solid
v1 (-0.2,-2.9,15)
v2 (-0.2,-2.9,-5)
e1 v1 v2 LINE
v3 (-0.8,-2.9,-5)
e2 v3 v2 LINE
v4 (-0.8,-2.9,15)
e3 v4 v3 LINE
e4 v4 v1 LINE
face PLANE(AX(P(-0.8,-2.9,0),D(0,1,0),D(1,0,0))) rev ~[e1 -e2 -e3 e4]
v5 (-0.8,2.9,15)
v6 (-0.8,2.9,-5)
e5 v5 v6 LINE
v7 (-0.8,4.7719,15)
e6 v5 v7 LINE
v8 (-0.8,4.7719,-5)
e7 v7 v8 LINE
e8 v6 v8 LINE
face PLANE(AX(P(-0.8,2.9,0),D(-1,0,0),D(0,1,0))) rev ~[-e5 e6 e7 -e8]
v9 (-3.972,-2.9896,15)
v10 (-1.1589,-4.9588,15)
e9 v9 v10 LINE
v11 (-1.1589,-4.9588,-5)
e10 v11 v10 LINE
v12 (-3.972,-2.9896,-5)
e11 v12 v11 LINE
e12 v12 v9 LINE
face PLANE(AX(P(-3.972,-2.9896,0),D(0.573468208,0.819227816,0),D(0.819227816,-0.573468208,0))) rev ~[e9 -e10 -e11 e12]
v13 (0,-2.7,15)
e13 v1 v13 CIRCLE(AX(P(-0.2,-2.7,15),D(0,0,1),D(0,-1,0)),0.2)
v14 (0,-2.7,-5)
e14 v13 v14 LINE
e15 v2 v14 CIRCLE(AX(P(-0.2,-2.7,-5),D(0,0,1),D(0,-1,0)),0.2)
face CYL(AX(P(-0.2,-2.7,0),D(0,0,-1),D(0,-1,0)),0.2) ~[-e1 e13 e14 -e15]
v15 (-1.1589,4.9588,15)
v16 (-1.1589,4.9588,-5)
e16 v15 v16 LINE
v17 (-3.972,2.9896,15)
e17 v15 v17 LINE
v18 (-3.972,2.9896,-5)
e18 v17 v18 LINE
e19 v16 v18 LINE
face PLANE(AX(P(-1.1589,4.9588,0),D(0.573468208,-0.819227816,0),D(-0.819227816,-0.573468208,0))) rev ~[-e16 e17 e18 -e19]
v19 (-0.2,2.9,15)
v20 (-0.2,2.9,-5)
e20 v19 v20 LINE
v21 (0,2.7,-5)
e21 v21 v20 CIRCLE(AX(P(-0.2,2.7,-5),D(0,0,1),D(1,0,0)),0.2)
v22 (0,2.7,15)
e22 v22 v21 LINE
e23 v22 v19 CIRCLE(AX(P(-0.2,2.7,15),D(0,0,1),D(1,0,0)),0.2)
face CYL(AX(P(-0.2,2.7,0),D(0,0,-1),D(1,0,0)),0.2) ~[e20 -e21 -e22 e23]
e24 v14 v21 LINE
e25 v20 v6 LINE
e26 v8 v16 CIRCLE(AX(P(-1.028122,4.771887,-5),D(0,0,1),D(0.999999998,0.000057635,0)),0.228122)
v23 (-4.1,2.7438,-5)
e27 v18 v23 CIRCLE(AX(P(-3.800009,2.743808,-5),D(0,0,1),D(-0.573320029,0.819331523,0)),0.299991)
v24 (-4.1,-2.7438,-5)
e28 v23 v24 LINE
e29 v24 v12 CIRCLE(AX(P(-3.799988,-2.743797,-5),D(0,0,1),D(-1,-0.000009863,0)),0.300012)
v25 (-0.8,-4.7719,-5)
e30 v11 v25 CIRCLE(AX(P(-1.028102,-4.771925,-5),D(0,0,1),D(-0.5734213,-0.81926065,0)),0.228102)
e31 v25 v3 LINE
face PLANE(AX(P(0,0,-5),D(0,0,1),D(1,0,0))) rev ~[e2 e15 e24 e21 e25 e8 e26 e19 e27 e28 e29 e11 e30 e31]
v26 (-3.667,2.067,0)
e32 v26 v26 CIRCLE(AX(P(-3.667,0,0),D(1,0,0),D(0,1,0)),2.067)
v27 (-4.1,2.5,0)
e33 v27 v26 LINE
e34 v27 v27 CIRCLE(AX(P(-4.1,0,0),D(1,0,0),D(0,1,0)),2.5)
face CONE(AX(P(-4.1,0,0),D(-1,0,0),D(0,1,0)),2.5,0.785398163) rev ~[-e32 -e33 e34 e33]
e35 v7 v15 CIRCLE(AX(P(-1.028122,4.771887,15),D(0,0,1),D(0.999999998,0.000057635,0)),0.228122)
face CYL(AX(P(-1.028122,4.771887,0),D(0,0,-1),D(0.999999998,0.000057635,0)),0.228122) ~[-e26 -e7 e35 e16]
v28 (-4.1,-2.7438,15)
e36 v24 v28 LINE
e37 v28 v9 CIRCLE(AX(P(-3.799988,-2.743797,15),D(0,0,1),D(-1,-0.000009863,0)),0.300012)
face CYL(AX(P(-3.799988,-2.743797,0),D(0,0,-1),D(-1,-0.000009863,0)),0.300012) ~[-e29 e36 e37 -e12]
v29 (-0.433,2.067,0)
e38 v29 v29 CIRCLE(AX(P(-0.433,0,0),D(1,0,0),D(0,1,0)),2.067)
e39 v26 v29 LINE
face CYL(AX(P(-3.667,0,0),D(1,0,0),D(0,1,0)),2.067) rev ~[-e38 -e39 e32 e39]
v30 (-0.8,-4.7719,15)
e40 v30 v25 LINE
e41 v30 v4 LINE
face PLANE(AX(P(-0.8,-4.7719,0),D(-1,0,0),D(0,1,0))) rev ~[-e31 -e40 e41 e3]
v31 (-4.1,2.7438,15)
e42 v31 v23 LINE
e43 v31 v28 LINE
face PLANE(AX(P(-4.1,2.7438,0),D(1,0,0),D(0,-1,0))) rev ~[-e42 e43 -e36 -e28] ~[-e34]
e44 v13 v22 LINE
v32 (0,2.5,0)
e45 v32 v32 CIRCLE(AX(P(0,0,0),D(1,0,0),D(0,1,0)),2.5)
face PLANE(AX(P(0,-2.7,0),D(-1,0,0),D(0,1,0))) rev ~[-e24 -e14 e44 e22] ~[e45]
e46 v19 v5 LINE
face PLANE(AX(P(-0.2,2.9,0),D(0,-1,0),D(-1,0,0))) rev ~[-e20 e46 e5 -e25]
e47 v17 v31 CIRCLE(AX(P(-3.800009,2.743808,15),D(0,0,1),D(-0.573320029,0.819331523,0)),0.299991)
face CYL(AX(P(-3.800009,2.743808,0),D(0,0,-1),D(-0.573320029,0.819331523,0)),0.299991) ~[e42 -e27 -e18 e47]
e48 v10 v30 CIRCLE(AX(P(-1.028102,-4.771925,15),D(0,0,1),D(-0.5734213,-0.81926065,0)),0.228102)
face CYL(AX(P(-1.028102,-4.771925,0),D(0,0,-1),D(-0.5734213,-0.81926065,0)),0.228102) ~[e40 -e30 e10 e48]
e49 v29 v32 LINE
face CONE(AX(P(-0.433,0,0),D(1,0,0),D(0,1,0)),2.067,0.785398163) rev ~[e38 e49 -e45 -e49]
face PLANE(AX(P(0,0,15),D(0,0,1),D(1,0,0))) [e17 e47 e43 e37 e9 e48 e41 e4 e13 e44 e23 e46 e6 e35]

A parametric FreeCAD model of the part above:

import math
import FreeCAD as App
import Part
import Sketcher

V = App.Vector
Q = App.Units.Quantity


def add_polygon(sketch, points):
    """Adds a closed chain of lines whose ends are joined by coincident constraints."""
    first, n = sketch.GeometryCount, len(points)
    for a, b in zip(points, points[1:] + points[:1]):
        sketch.addGeometry(Part.LineSegment(App.Vector(*a, 0), App.Vector(*b, 0)), False)
    for i in range(n):
        sketch.addConstraint(Sketcher.Constraint("Coincident", first + i, 2, first + (i + 1) % n, 1))

doc = App.newDocument("Part")
body = doc.addObject("PartDesign::Body", "Body")

# Sketch on XY plane
sketch1 = body.newObject("Sketcher::SketchObject", "Sketch")
sketch1.AttachmentSupport = (doc.getObject("XY_Plane"), [""])
sketch1.MapMode = "FlatFace"
sketch1.addGeometry([
    Part.LineSegment(V(-4.1, 2.74, 0), V(-4.1, -2.74, 0)),  # 0
    Part.ArcOfCircle(Part.Circle(V(-3.8, -2.74, 0), V(0, 0, 1), 0.3), math.radians(180), math.radians(235)),  # 1
    Part.LineSegment(V(-3.97, -2.99, 0), V(-1.16, -4.96, 0)),  # 2
    Part.ArcOfCircle(Part.Circle(V(-1.03, -4.77, 0), V(0, 0, 1), 0.23), math.radians(-125), math.radians(0)),  # 3
    Part.LineSegment(V(-0.8, -4.77, 0), V(-0.8, -2.9, 0)),  # 4
    Part.LineSegment(V(-0.8, -2.9, 0), V(-0.2, -2.9, 0)),  # 5
    Part.ArcOfCircle(Part.Circle(V(-0.2, -2.7, 0), V(0, 0, 1), 0.2), math.radians(-90), math.radians(0)),  # 6
    Part.LineSegment(V(0, -2.7, 0), V(0, 2.7, 0)),  # 7
    Part.ArcOfCircle(Part.Circle(V(-0.2, 2.7, 0), V(0, 0, 1), 0.2), math.radians(0), math.radians(90)),  # 8
    Part.LineSegment(V(-0.2, 2.9, 0), V(-0.8, 2.9, 0)),  # 9
    Part.LineSegment(V(-0.8, 2.9, 0), V(-0.8, 4.77, 0)),  # 10
    Part.ArcOfCircle(Part.Circle(V(-1.03, 4.77, 0), V(0, 0, 1), 0.23), math.radians(0), math.radians(125)),  # 11
    Part.LineSegment(V(-1.16, 4.96, 0), V(-3.97, 2.99, 0)),  # 12
    Part.ArcOfCircle(Part.Circle(V(-3.8, 2.74, 0), V(0, 0, 1), 0.3), math.radians(125), math.radians(180)),  # 13
], False)
sketch1.addConstraint([
    Sketcher.Constraint("Tangent", 0, 2, 1, 1),
    Sketcher.Constraint("Tangent", 1, 2, 2, 1),
    Sketcher.Constraint("Tangent", 2, 2, 3, 1),
    Sketcher.Constraint("Tangent", 3, 2, 4, 1),
    Sketcher.Constraint("Coincident", 4, 2, 5, 1),
    Sketcher.Constraint("Tangent", 5, 2, 6, 1),
    Sketcher.Constraint("Tangent", 6, 2, 7, 1),
    Sketcher.Constraint("Tangent", 7, 2, 8, 1),
    Sketcher.Constraint("Tangent", 8, 2, 9, 1),
    Sketcher.Constraint("Coincident", 9, 2, 10, 1),
    Sketcher.Constraint("Tangent", 10, 2, 11, 1),
    Sketcher.Constraint("Tangent", 11, 2, 12, 1),
    Sketcher.Constraint("Tangent", 12, 2, 13, 1),
    Sketcher.Constraint("Tangent", 13, 2, 0, 1),
    Sketcher.Constraint("Vertical", 0),
    Sketcher.Constraint("Vertical", 4),
    Sketcher.Constraint("Horizontal", 5),
    Sketcher.Constraint("Vertical", 7),
    Sketcher.Constraint("Horizontal", 9),
    Sketcher.Constraint("Vertical", 10),
    Sketcher.Constraint("Equal", 6, 8),
    Sketcher.Constraint("Equal", 3, 11),
    Sketcher.Constraint("Equal", 1, 13),
    Sketcher.Constraint("Symmetric", 6, 2, 7, 2, -1, 1),
    Sketcher.Constraint("Symmetric", 3, 3, 11, 3, -1),
    Sketcher.Constraint("Vertical", 2, 2, 11, 2),
    Sketcher.Constraint("Radius", 1, Q("0.3 mm")),
    Sketcher.Constraint("Radius", 6, Q("0.2 mm")),
    Sketcher.Constraint("DistanceX", 5, 1, 5, 2, Q("0.6 mm")),
    Sketcher.Constraint("DistanceY", 7, 1, 7, 2, Q("5.4 mm")),
    Sketcher.Constraint("Radius", 11, Q("0.228 mm")),
    Sketcher.Constraint("DistanceX", 1, 3, 3, 2, Q("3 mm")),
    Sketcher.Constraint("DistanceY", 4, 1, 4, 2, Q("1.872 mm")),
    Sketcher.Constraint("DistanceY", 0, 2, 0, 1, Q("5.4876 mm")),
])
pad1 = body.newObject("PartDesign::Pad", "Pad")
pad1.Profile = sketch1
pad1.Type = "TwoLengths"
pad1.Length = 15
pad1.Length2 = 5

# Sketch on XY plane
sketch2 = body.newObject("Sketcher::SketchObject", "Sketch001")
sketch2.AttachmentSupport = (doc.getObject("XY_Plane"), [""])
sketch2.MapMode = "FlatFace"
add_polygon(sketch2, [(-4.1, 0), (0, 0), (0, 2.5), (-0.4, 2.1), (-3.7, 2.1), (-4.1, 2.5)])  # lines 0-5
sketch2.addConstraint([
    Sketcher.Constraint("Horizontal", 0),
    Sketcher.Constraint("Vertical", 1),
    Sketcher.Constraint("Horizontal", 3),
    Sketcher.Constraint("Vertical", 5),
    Sketcher.Constraint("Coincident", 0, 2, -1, 1),
    Sketcher.Constraint("Perpendicular", 2, 4),
    Sketcher.Constraint("Horizontal", 1, 2, 4, 2),
    Sketcher.Constraint("Equal", 2, 4),
    Sketcher.Constraint("DistanceX", 0, 1, 0, 2, Q("4.1 mm")),
    Sketcher.Constraint("DistanceY", 1, 1, 1, 2, Q("2.5 mm")),
    Sketcher.Constraint("DistanceX", 3, 2, 3, 1, Q("3.234 mm")),
])
groove = body.newObject("PartDesign::Groove", "Groove")
groove.Profile = sketch2
groove.ReferenceAxis = (sketch2, ["H_Axis"])
groove.Angle = 360

doc.recompute()
